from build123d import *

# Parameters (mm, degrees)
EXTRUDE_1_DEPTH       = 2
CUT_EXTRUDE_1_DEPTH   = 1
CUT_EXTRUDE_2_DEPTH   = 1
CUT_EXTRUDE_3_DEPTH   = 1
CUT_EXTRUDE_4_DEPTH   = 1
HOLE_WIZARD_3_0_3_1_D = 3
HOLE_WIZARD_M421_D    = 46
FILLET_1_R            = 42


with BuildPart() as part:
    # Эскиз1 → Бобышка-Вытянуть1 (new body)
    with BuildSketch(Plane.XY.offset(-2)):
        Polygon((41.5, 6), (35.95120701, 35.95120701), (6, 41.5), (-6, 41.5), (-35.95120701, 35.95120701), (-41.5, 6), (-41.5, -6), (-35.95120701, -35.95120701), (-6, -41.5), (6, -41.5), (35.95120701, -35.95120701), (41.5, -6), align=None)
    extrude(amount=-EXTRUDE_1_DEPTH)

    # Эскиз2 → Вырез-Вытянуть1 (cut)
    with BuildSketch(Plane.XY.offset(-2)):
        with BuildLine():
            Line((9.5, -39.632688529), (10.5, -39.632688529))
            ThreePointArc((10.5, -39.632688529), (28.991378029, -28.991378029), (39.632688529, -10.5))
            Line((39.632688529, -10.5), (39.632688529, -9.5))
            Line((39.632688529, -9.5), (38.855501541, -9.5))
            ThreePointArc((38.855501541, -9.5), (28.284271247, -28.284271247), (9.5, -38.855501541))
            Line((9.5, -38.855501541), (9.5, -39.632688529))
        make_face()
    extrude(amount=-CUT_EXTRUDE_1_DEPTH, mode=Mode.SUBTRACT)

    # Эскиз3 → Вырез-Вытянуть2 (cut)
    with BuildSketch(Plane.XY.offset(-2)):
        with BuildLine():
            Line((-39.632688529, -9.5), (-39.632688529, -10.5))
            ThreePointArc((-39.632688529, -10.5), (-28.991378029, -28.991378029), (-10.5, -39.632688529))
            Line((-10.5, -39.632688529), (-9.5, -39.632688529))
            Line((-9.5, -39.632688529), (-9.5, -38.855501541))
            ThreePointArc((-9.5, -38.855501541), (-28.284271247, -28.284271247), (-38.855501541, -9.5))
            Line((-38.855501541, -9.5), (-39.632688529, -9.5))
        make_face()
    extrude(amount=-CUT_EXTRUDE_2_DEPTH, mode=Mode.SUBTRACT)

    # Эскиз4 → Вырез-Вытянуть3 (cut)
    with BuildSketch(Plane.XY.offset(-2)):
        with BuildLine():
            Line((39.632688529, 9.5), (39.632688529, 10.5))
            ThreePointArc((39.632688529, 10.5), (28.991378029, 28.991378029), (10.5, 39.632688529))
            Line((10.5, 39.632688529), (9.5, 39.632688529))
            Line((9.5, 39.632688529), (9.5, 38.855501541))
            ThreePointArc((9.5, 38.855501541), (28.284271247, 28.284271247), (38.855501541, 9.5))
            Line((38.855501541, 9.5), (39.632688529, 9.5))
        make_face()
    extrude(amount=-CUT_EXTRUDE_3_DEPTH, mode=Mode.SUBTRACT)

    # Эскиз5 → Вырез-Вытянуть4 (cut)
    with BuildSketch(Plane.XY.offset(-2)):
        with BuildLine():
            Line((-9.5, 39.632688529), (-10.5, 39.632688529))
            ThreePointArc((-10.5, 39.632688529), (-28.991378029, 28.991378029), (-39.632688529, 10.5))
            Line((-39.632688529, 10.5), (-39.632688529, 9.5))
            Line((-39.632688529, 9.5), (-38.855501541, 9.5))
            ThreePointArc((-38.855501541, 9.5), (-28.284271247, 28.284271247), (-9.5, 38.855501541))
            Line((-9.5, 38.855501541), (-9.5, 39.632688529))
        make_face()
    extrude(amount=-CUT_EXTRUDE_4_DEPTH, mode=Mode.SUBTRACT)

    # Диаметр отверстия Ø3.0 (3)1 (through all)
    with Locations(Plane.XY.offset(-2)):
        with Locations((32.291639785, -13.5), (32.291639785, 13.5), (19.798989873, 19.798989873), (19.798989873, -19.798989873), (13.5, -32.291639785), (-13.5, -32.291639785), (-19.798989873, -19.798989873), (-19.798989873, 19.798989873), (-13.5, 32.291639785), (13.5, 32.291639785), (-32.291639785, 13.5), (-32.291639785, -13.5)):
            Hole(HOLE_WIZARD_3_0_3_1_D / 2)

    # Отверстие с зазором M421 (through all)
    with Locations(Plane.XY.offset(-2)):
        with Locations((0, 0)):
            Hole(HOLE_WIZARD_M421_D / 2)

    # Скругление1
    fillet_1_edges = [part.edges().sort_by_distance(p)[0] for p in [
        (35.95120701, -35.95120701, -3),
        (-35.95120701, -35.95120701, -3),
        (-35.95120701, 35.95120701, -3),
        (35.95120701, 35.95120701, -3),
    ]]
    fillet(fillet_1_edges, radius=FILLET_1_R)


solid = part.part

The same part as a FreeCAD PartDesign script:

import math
import FreeCAD as App
import Part
import Sketcher
from FreeCAD import Vector
Q = App.Units.Quantity


def edges_at(feature, points):
    """Names of the edges that pass closest to the given points."""
    edges = feature.Shape.Edges
    near = lambda p: min(range(len(edges)), key=lambda i: edges[i].distToShape(Part.Vertex(*p))[0])
    return sorted({f"Edge{near(p) + 1}" for p in points})

doc = App.newDocument("Part")
body = doc.addObject("PartDesign::Body", "Body")

sketch1 = body.newObject("Sketcher::SketchObject", "Sketch")
sketch1.AttachmentSupport = (doc.getObject("XY_Plane"), [""])
sketch1.MapMode = "FlatFace"
sketch1.AttachmentOffset = App.Placement(Vector(0, 0, -2), App.Rotation())
sketch1.addGeometry([
    Part.LineSegment(Vector(41.5, 6, 0), Vector(35.951207, 35.951207, 0)),
    Part.LineSegment(Vector(35.951207, 35.951207, 0), Vector(6, 41.5, 0)),
    Part.LineSegment(Vector(6, 41.5, 0), Vector(-6, 41.5, 0)),
    Part.LineSegment(Vector(-6, 41.5, 0), Vector(-35.951207, 35.951207, 0)),
    Part.LineSegment(Vector(-35.951207, 35.951207, 0), Vector(-41.5, 6, 0)),
    Part.LineSegment(Vector(-41.5, 6, 0), Vector(-41.5, -6, 0)),
    Part.LineSegment(Vector(-41.5, -6, 0), Vector(-35.951207, -35.951207, 0)),
    Part.LineSegment(Vector(-35.951207, -35.951207, 0), Vector(-6, -41.5, 0)),
    Part.LineSegment(Vector(-6, -41.5, 0), Vector(6, -41.5, 0)),
    Part.LineSegment(Vector(6, -41.5, 0), Vector(35.951207, -35.951207, 0)),
    Part.LineSegment(Vector(35.951207, -35.951207, 0), Vector(41.5, -6, 0)),
    Part.LineSegment(Vector(41.5, -6, 0), Vector(41.5, 6, 0)),
], False)
sketch1.addConstraint([
    Sketcher.Constraint("Coincident", 0, 2, 1, 1),
    Sketcher.Constraint("Coincident", 1, 2, 2, 1),
    Sketcher.Constraint("Coincident", 2, 2, 3, 1),
    Sketcher.Constraint("Coincident", 3, 2, 4, 1),
    Sketcher.Constraint("Coincident", 4, 2, 5, 1),
    Sketcher.Constraint("Coincident", 5, 2, 6, 1),
    Sketcher.Constraint("Coincident", 6, 2, 7, 1),
    Sketcher.Constraint("Coincident", 7, 2, 8, 1),
    Sketcher.Constraint("Coincident", 8, 2, 9, 1),
    Sketcher.Constraint("Coincident", 9, 2, 10, 1),
    Sketcher.Constraint("Coincident", 10, 2, 11, 1),
    Sketcher.Constraint("Coincident", 11, 2, 0, 1),
    Sketcher.Constraint("Horizontal", 2),
    Sketcher.Constraint("Vertical", 5),
    Sketcher.Constraint("Horizontal", 8),
    Sketcher.Constraint("Vertical", 11),
    Sketcher.Constraint("Symmetric", 0, 2, 6, 2, -1, 1),
    Sketcher.Constraint("Symmetric", 1, 2, 7, 2, -1, 1),
    Sketcher.Constraint("Symmetric", 3, 2, 9, 2, -1, 1),
    Sketcher.Constraint("Symmetric", 4, 2, 10, 2, -1, 1),
    Sketcher.Constraint("Symmetric", 0, 2, 3, 2, -2),
    Sketcher.Constraint("Perpendicular", 0, 3),
    Sketcher.Constraint("Perpendicular", 1, 4),
    Sketcher.Constraint("Perpendicular", 3, 6),
    Sketcher.Constraint("Perpendicular", 6, 9),
    Sketcher.Constraint("Horizontal", 5, 2, 10, 2),
    Sketcher.Constraint("Equal", 8, 5),
    Sketcher.Constraint("Equal", 0, 1),
    Sketcher.Constraint("DistanceX", 2, 2, 2, 1, Q("12 mm")),
    Sketcher.Constraint("DistanceY", 7, 2, 2, 2, Q("83 mm")),
    Sketcher.Constraint("Distance", 0, Q("30.460859 mm")),
])
pad1 = body.newObject("PartDesign::Pad", "Pad")
pad1.Profile = sketch1
pad1.Length = 2
pad1.Reversed = True

sketch2 = body.newObject("Sketcher::SketchObject", "Sketch001")
sketch2.AttachmentSupport = (doc.getObject("XY_Plane"), [""])
sketch2.MapMode = "FlatFace"
sketch2.AttachmentOffset = App.Placement(Vector(0, 0, -2), App.Rotation())
sketch2.addGeometry([
    Part.LineSegment(Vector(9.5, -39.632689, 0), Vector(10.5, -39.632689, 0)),
    Part.ArcOfCircle(Part.Circle(Vector(0, 0, 0), Vector(0, 0, 1), 41), math.radians(-75.161369), math.radians(-14.838631)),
    Part.LineSegment(Vector(39.632689, -10.5, 0), Vector(39.632689, -9.5, 0)),
    Part.LineSegment(Vector(39.632689, -9.5, 0), Vector(38.855502, -9.5, 0)),
    Part.ArcOfCircle(Part.Circle(Vector(0, 0, 0), Vector(0, 0, 1), 40), math.radians(-76.260965), math.radians(-13.739035)),
    Part.LineSegment(Vector(9.5, -38.855502, 0), Vector(9.5, -39.632689, 0)),
], False)
sketch2.addConstraint([
    Sketcher.Constraint("Coincident", 0, 2, 1, 1),
    Sketcher.Constraint("Coincident", 1, 2, 2, 1),
    Sketcher.Constraint("Coincident", 2, 2, 3, 1),
    Sketcher.Constraint("Coincident", 3, 2, 4, 2),
    Sketcher.Constraint("Coincident", 4, 1, 5, 1),
    Sketcher.Constraint("Coincident", 5, 2, 0, 1),
    Sketcher.Constraint("Horizontal", 0),
    Sketcher.Constraint("Vertical", 2),
    Sketcher.Constraint("Horizontal", 3),
    Sketcher.Constraint("Vertical", 5),
    Sketcher.Constraint("Coincident", 1, 3, -1, 1),
    Sketcher.Constraint("Coincident", 4, 3, -1, 1),
    Sketcher.Constraint("Equal", 0, 2),
    Sketcher.Constraint("Equal", 3, 5),
    Sketcher.Constraint("Radius", 1, Q("41 mm")),
    Sketcher.Constraint("Radius", 4, Q("40 mm")),
    Sketcher.Constraint("DistanceX", 0, 1, 0, 2, Q("1 mm")),
    Sketcher.Constraint("DistanceX", -1, 1, 0, 2, Q("10.5 mm")),
])
pocket1 = body.newObject("PartDesign::Pocket", "Pocket")
pocket1.Profile = sketch2
pocket1.Length = 1

sketch3 = body.newObject("Sketcher::SketchObject", "Sketch002")
sketch3.AttachmentSupport = (doc.getObject("XY_Plane"), [""])
sketch3.MapMode = "FlatFace"
sketch3.AttachmentOffset = App.Placement(Vector(0, 0, -2), App.Rotation())
sketch3.addGeometry([
    Part.LineSegment(Vector(-39.632689, -9.5, 0), Vector(-39.632689, -10.5, 0)),
    Part.ArcOfCircle(Part.Circle(Vector(0, 0, 0), Vector(0, 0, 1), 41), math.radians(-165.161369), math.radians(-104.838631)),
    Part.LineSegment(Vector(-10.5, -39.632689, 0), Vector(-9.5, -39.632689, 0)),
    Part.LineSegment(Vector(-9.5, -39.632689, 0), Vector(-9.5, -38.855502, 0)),
    Part.ArcOfCircle(Part.Circle(Vector(0, 0, 0), Vector(0, 0, 1), 40), math.radians(-166.260965), math.radians(-103.739035)),
    Part.LineSegment(Vector(-38.855502, -9.5, 0), Vector(-39.632689, -9.5, 0)),
], False)
sketch3.addConstraint([
    Sketcher.Constraint("Coincident", 0, 2, 1, 1),
    Sketcher.Constraint("Coincident", 1, 2, 2, 1),
    Sketcher.Constraint("Coincident", 2, 2, 3, 1),
    Sketcher.Constraint("Coincident", 3, 2, 4, 2),
    Sketcher.Constraint("Coincident", 4, 1, 5, 1),
    Sketcher.Constraint("Coincident", 5, 2, 0, 1),
    Sketcher.Constraint("Vertical", 0),
    Sketcher.Constraint("Horizontal", 2),
    Sketcher.Constraint("Vertical", 3),
    Sketcher.Constraint("Horizontal", 5),
    Sketcher.Constraint("Coincident", 1, 3, -1, 1),
    Sketcher.Constraint("Coincident", 4, 3, -1, 1),
    Sketcher.Constraint("Equal", 2, 0),
    Sketcher.Constraint("Equal", 5, 3),
    Sketcher.Constraint("Radius", 1, Q("41 mm")),
    Sketcher.Constraint("Radius", 4, Q("40 mm")),
    Sketcher.Constraint("DistanceX", 2, 1, 2, 2, Q("1 mm")),
    Sketcher.Constraint("DistanceY", 0, 2, -1, 1, Q("10.5 mm")),
])
pocket2 = body.newObject("PartDesign::Pocket", "Pocket001")
pocket2.Profile = sketch3
pocket2.Length = 1

sketch4 = body.newObject("Sketcher::SketchObject", "Sketch003")
sketch4.AttachmentSupport = (doc.getObject("XY_Plane"), [""])
sketch4.MapMode = "FlatFace"
sketch4.AttachmentOffset = App.Placement(Vector(0, 0, -2), App.Rotation())
sketch4.addGeometry([
    Part.LineSegment(Vector(39.632689, 9.5, 0), Vector(39.632689, 10.5, 0)),
    Part.ArcOfCircle(Part.Circle(Vector(0, 0, 0), Vector(0, 0, 1), 41), math.radians(14.838631), math.radians(75.161369)),
    Part.LineSegment(Vector(10.5, 39.632689, 0), Vector(9.5, 39.632689, 0)),
    Part.LineSegment(Vector(9.5, 39.632689, 0), Vector(9.5, 38.855502, 0)),
    Part.ArcOfCircle(Part.Circle(Vector(0, 0, 0), Vector(0, 0, 1), 40), math.radians(13.739035), math.radians(76.260965)),
    Part.LineSegment(Vector(38.855502, 9.5, 0), Vector(39.632689, 9.5, 0)),
], False)
sketch4.addConstraint([
    Sketcher.Constraint("Coincident", 0, 2, 1, 1),
    Sketcher.Constraint("Coincident", 1, 2, 2, 1),
    Sketcher.Constraint("Coincident", 2, 2, 3, 1),
    Sketcher.Constraint("Coincident", 3, 2, 4, 2),
    Sketcher.Constraint("Coincident", 4, 1, 5, 1),
    Sketcher.Constraint("Coincident", 5, 2, 0, 1),
    Sketcher.Constraint("Vertical", 0),
    Sketcher.Constraint("Horizontal", 2),
    Sketcher.Constraint("Vertical", 3),
    Sketcher.Constraint("Horizontal", 5),
    Sketcher.Constraint("Coincident", 1, 3, -1, 1),
    Sketcher.Constraint("Coincident", 4, 3, -1, 1),
    Sketcher.Constraint("Equal", 2, 0),
    Sketcher.Constraint("Equal", 5, 3),
    Sketcher.Constraint("Radius", 1, Q("41 mm")),
    Sketcher.Constraint("Radius", 4, Q("40 mm")),
    Sketcher.Constraint("DistanceX", 2, 2, 2, 1, Q("1 mm")),
    Sketcher.Constraint("DistanceY", -1, 1, 0, 2, Q("10.5 mm")),
])
pocket3 = body.newObject("PartDesign::Pocket", "Pocket002")
pocket3.Profile = sketch4
pocket3.Length = 1

sketch5 = body.newObject("Sketcher::SketchObject", "Sketch004")
sketch5.AttachmentSupport = (doc.getObject("XY_Plane"), [""])
sketch5.MapMode = "FlatFace"
sketch5.AttachmentOffset = App.Placement(Vector(0, 0, -2), App.Rotation())
sketch5.addGeometry([
    Part.LineSegment(Vector(-9.5, 39.632689, 0), Vector(-10.5, 39.632689, 0)),
    Part.ArcOfCircle(Part.Circle(Vector(0, 0, 0), Vector(0, 0, 1), 41), math.radians(104.838631), math.radians(165.161369)),
    Part.LineSegment(Vector(-39.632689, 10.5, 0), Vector(-39.632689, 9.5, 0)),
    Part.LineSegment(Vector(-39.632689, 9.5, 0), Vector(-38.855502, 9.5, 0)),
    Part.ArcOfCircle(Part.Circle(Vector(0, 0, 0), Vector(0, 0, 1), 40), math.radians(103.739035), math.radians(166.260965)),
    Part.LineSegment(Vector(-9.5, 38.855502, 0), Vector(-9.5, 39.632689, 0)),
], False)
sketch5.addConstraint([
    Sketcher.Constraint("Coincident", 0, 2, 1, 1),
    Sketcher.Constraint("Coincident", 1, 2, 2, 1),
    Sketcher.Constraint("Coincident", 2, 2, 3, 1),
    Sketcher.Constraint("Coincident", 3, 2, 4, 2),
    Sketcher.Constraint("Coincident", 4, 1, 5, 1),
    Sketcher.Constraint("Coincident", 5, 2, 0, 1),
    Sketcher.Constraint("Horizontal", 0),
    Sketcher.Constraint("Vertical", 2),
    Sketcher.Constraint("Horizontal", 3),
    Sketcher.Constraint("Vertical", 5),
    Sketcher.Constraint("Coincident", 1, 3, -1, 1),
    Sketcher.Constraint("Coincident", 4, 3, -1, 1),
    Sketcher.Constraint("Equal", 0, 2),
    Sketcher.Constraint("Equal", 3, 5),
    Sketcher.Constraint("Radius", 1, Q("41 mm")),
    Sketcher.Constraint("Radius", 4, Q("40 mm")),
    Sketcher.Constraint("DistanceX", 0, 2, 0, 1, Q("1 mm")),
    Sketcher.Constraint("DistanceX", 0, 2, -1, 1, Q("10.5 mm")),
])
pocket4 = body.newObject("PartDesign::Pocket", "Pocket003")
pocket4.Profile = sketch5
pocket4.Length = 1

sketch6 = body.newObject("Sketcher::SketchObject", "Sketch005")
sketch6.AttachmentSupport = (doc.getObject("XY_Plane"), [""])
sketch6.MapMode = "FlatFace"
sketch6.AttachmentOffset = App.Placement(Vector(0, 0, -2), App.Rotation())
sketch6.addGeometry([
    Part.Circle(Vector(32.29164, -13.5, 0), Vector(0, 0, 1), 1.5),
    Part.Circle(Vector(32.29164, 13.5, 0), Vector(0, 0, 1), 1.5),
    Part.Circle(Vector(19.79899, 19.79899, 0), Vector(0, 0, 1), 1.5),
    Part.Circle(Vector(19.79899, -19.79899, 0), Vector(0, 0, 1), 1.5),
    Part.Circle(Vector(13.5, -32.29164, 0), Vector(0, 0, 1), 1.5),
    Part.Circle(Vector(-13.5, -32.29164, 0), Vector(0, 0, 1), 1.5),
    Part.Circle(Vector(-19.79899, -19.79899, 0), Vector(0, 0, 1), 1.5),
    Part.Circle(Vector(-19.79899, 19.79899, 0), Vector(0, 0, 1), 1.5),
    Part.Circle(Vector(-13.5, 32.29164, 0), Vector(0, 0, 1), 1.5),
    Part.Circle(Vector(13.5, 32.29164, 0), Vector(0, 0, 1), 1.5),
    Part.Circle(Vector(-32.29164, 13.5, 0), Vector(0, 0, 1), 1.5),
    Part.Circle(Vector(-32.29164, -13.5, 0), Vector(0, 0, 1), 1.5),
], False)
sketch6.addConstraint([
    Sketcher.Constraint("Equal", 0, 1),
    Sketcher.Constraint("Equal", 1, 2),
    Sketcher.Constraint("Equal", 2, 3),
    Sketcher.Constraint("Equal", 3, 4),
    Sketcher.Constraint("Equal", 4, 5),
    Sketcher.Constraint("Equal", 5, 6),
    Sketcher.Constraint("Equal", 6, 7),
    Sketcher.Constraint("Equal", 7, 8),
    Sketcher.Constraint("Equal", 8, 9),
    Sketcher.Constraint("Equal", 9, 10),
    Sketcher.Constraint("Equal", 10, 11),
    Sketcher.Constraint("Symmetric", 2, 3, 6, 3, -1, 1),
    Sketcher.Constraint("Symmetric", 3, 3, 7, 3, -1, 1),
    Sketcher.Constraint("Symmetric", 4, 3, 8, 3, -1, 1),
    Sketcher.Constraint("Symmetric", 5, 3, 9, 3, -1, 1),
    Sketcher.Constraint("Symmetric", 0, 3, 10, 3, -1, 1),
    Sketcher.Constraint("Symmetric", 1, 3, 11, 3, -1, 1),
    Sketcher.Constraint("Symmetric", 4, 3, 5, 3, -2),
    Sketcher.Constraint("Symmetric", 3, 3, 6, 3, -2),
    Sketcher.Constraint("Symmetric", 1, 3, 10, 3, -2),
    Sketcher.Constraint("Diameter", 0, Q("3 mm")),
    Sketcher.Constraint("DistanceY", 0, 3, 1, 3, Q("27 mm")),
    Sketcher.Constraint("DistanceX", 5, 3, 4, 3, Q("27 mm")),
    Sketcher.Constraint("DistanceX", -1, 1, 0, 3, Q("32.29164 mm")),
    Sketcher.Constraint("DistanceX", -1, 1, 2, 3, Q("19.79899 mm")),
    Sketcher.Constraint("DistanceY", -1, 1, 2, 3, Q("19.79899 mm")),
    Sketcher.Constraint("DistanceY", 4, 3, -1, 1, Q("32.29164 mm")),
])
doc.recompute()
hole = body.newObject("PartDesign::Hole", "Hole")
hole.Profile = sketch6
hole.ThreadType = "None"
hole.Diameter = 3
hole.DepthType = "ThroughAll"

sketch7 = body.newObject("Sketcher::SketchObject", "Sketch006")
sketch7.AttachmentSupport = (doc.getObject("XY_Plane"), [""])
sketch7.MapMode = "FlatFace"
sketch7.AttachmentOffset = App.Placement(Vector(0, 0, -2), App.Rotation())
sketch7.addGeometry(Part.Circle(Vector(0, 0, 0), Vector(0, 0, 1), 23), False)
sketch7.addConstraint([
    Sketcher.Constraint("Coincident", 0, 3, -1, 1),
    Sketcher.Constraint("Diameter", 0, Q("46 mm")),
])
doc.recompute()
hole2 = body.newObject("PartDesign::Hole", "Hole001")
hole2.Profile = sketch7
hole2.ThreadType = "None"
hole2.Diameter = 46
hole2.DepthType = "ThroughAll"
doc.recompute()

fillet = body.newObject("PartDesign::Fillet", "Fillet")
fillet.Base = (hole2, edges_at(hole2, [
    (35.951, -35.951, -3),
    (-35.951, -35.951, -3),
    (-35.951, 35.951, -3),
    (35.951, 35.951, -3),
]))
fillet.Radius = 42

doc.recompute()
